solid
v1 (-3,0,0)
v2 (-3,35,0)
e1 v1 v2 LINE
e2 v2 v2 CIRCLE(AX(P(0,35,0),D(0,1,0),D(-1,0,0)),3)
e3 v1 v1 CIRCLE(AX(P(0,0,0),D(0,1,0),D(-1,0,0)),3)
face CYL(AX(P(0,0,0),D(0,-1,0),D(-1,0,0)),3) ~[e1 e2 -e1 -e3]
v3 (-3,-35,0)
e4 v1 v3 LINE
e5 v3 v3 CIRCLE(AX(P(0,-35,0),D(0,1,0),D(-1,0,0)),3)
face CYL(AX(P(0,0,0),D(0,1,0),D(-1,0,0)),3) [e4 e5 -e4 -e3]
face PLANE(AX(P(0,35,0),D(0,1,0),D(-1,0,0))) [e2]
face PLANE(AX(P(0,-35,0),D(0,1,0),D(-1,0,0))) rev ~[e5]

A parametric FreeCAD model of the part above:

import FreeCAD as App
import Part
import Sketcher
from FreeCAD import Vector

doc = App.newDocument("Part")
params = doc.addObject("Spreadsheet::Sheet", "Params")
for row, (alias, value) in enumerate([
    ("sketch1_diameter", "6 mm"),
    ("pad1_length", "70 mm"),
], start=1):
    params.set(f"A{row}", alias)
    params.set(f"B{row}", "=" + value)
    params.setAlias(f"B{row}", alias)

body = doc.addObject("PartDesign::Body", "Body")

# Sketch on XZ plane
sketch1 = body.newObject("Sketcher::SketchObject", "Sketch")
sketch1.AttachmentSupport = (doc.getObject("XZ_Plane"), [""])
sketch1.MapMode = "FlatFace"
sketch1.addGeometry(Part.Circle(Vector(0, 0, 0), Vector(0, 0, 1), 3), False)
sketch1.addConstraint(Sketcher.Constraint("Coincident", 0, 3, -1, 1))
sketch1.addConstraint(Sketcher.Constraint("Diameter", 0, 6.0))
sketch1.setExpression("Constraints[1]", "Params.sketch1_diameter")
pad1 = body.newObject("PartDesign::Pad", "Pad")
pad1.Profile = sketch1
pad1.setExpression("Length", "Params.pad1_length")
pad1.Midplane = True

doc.recompute()
